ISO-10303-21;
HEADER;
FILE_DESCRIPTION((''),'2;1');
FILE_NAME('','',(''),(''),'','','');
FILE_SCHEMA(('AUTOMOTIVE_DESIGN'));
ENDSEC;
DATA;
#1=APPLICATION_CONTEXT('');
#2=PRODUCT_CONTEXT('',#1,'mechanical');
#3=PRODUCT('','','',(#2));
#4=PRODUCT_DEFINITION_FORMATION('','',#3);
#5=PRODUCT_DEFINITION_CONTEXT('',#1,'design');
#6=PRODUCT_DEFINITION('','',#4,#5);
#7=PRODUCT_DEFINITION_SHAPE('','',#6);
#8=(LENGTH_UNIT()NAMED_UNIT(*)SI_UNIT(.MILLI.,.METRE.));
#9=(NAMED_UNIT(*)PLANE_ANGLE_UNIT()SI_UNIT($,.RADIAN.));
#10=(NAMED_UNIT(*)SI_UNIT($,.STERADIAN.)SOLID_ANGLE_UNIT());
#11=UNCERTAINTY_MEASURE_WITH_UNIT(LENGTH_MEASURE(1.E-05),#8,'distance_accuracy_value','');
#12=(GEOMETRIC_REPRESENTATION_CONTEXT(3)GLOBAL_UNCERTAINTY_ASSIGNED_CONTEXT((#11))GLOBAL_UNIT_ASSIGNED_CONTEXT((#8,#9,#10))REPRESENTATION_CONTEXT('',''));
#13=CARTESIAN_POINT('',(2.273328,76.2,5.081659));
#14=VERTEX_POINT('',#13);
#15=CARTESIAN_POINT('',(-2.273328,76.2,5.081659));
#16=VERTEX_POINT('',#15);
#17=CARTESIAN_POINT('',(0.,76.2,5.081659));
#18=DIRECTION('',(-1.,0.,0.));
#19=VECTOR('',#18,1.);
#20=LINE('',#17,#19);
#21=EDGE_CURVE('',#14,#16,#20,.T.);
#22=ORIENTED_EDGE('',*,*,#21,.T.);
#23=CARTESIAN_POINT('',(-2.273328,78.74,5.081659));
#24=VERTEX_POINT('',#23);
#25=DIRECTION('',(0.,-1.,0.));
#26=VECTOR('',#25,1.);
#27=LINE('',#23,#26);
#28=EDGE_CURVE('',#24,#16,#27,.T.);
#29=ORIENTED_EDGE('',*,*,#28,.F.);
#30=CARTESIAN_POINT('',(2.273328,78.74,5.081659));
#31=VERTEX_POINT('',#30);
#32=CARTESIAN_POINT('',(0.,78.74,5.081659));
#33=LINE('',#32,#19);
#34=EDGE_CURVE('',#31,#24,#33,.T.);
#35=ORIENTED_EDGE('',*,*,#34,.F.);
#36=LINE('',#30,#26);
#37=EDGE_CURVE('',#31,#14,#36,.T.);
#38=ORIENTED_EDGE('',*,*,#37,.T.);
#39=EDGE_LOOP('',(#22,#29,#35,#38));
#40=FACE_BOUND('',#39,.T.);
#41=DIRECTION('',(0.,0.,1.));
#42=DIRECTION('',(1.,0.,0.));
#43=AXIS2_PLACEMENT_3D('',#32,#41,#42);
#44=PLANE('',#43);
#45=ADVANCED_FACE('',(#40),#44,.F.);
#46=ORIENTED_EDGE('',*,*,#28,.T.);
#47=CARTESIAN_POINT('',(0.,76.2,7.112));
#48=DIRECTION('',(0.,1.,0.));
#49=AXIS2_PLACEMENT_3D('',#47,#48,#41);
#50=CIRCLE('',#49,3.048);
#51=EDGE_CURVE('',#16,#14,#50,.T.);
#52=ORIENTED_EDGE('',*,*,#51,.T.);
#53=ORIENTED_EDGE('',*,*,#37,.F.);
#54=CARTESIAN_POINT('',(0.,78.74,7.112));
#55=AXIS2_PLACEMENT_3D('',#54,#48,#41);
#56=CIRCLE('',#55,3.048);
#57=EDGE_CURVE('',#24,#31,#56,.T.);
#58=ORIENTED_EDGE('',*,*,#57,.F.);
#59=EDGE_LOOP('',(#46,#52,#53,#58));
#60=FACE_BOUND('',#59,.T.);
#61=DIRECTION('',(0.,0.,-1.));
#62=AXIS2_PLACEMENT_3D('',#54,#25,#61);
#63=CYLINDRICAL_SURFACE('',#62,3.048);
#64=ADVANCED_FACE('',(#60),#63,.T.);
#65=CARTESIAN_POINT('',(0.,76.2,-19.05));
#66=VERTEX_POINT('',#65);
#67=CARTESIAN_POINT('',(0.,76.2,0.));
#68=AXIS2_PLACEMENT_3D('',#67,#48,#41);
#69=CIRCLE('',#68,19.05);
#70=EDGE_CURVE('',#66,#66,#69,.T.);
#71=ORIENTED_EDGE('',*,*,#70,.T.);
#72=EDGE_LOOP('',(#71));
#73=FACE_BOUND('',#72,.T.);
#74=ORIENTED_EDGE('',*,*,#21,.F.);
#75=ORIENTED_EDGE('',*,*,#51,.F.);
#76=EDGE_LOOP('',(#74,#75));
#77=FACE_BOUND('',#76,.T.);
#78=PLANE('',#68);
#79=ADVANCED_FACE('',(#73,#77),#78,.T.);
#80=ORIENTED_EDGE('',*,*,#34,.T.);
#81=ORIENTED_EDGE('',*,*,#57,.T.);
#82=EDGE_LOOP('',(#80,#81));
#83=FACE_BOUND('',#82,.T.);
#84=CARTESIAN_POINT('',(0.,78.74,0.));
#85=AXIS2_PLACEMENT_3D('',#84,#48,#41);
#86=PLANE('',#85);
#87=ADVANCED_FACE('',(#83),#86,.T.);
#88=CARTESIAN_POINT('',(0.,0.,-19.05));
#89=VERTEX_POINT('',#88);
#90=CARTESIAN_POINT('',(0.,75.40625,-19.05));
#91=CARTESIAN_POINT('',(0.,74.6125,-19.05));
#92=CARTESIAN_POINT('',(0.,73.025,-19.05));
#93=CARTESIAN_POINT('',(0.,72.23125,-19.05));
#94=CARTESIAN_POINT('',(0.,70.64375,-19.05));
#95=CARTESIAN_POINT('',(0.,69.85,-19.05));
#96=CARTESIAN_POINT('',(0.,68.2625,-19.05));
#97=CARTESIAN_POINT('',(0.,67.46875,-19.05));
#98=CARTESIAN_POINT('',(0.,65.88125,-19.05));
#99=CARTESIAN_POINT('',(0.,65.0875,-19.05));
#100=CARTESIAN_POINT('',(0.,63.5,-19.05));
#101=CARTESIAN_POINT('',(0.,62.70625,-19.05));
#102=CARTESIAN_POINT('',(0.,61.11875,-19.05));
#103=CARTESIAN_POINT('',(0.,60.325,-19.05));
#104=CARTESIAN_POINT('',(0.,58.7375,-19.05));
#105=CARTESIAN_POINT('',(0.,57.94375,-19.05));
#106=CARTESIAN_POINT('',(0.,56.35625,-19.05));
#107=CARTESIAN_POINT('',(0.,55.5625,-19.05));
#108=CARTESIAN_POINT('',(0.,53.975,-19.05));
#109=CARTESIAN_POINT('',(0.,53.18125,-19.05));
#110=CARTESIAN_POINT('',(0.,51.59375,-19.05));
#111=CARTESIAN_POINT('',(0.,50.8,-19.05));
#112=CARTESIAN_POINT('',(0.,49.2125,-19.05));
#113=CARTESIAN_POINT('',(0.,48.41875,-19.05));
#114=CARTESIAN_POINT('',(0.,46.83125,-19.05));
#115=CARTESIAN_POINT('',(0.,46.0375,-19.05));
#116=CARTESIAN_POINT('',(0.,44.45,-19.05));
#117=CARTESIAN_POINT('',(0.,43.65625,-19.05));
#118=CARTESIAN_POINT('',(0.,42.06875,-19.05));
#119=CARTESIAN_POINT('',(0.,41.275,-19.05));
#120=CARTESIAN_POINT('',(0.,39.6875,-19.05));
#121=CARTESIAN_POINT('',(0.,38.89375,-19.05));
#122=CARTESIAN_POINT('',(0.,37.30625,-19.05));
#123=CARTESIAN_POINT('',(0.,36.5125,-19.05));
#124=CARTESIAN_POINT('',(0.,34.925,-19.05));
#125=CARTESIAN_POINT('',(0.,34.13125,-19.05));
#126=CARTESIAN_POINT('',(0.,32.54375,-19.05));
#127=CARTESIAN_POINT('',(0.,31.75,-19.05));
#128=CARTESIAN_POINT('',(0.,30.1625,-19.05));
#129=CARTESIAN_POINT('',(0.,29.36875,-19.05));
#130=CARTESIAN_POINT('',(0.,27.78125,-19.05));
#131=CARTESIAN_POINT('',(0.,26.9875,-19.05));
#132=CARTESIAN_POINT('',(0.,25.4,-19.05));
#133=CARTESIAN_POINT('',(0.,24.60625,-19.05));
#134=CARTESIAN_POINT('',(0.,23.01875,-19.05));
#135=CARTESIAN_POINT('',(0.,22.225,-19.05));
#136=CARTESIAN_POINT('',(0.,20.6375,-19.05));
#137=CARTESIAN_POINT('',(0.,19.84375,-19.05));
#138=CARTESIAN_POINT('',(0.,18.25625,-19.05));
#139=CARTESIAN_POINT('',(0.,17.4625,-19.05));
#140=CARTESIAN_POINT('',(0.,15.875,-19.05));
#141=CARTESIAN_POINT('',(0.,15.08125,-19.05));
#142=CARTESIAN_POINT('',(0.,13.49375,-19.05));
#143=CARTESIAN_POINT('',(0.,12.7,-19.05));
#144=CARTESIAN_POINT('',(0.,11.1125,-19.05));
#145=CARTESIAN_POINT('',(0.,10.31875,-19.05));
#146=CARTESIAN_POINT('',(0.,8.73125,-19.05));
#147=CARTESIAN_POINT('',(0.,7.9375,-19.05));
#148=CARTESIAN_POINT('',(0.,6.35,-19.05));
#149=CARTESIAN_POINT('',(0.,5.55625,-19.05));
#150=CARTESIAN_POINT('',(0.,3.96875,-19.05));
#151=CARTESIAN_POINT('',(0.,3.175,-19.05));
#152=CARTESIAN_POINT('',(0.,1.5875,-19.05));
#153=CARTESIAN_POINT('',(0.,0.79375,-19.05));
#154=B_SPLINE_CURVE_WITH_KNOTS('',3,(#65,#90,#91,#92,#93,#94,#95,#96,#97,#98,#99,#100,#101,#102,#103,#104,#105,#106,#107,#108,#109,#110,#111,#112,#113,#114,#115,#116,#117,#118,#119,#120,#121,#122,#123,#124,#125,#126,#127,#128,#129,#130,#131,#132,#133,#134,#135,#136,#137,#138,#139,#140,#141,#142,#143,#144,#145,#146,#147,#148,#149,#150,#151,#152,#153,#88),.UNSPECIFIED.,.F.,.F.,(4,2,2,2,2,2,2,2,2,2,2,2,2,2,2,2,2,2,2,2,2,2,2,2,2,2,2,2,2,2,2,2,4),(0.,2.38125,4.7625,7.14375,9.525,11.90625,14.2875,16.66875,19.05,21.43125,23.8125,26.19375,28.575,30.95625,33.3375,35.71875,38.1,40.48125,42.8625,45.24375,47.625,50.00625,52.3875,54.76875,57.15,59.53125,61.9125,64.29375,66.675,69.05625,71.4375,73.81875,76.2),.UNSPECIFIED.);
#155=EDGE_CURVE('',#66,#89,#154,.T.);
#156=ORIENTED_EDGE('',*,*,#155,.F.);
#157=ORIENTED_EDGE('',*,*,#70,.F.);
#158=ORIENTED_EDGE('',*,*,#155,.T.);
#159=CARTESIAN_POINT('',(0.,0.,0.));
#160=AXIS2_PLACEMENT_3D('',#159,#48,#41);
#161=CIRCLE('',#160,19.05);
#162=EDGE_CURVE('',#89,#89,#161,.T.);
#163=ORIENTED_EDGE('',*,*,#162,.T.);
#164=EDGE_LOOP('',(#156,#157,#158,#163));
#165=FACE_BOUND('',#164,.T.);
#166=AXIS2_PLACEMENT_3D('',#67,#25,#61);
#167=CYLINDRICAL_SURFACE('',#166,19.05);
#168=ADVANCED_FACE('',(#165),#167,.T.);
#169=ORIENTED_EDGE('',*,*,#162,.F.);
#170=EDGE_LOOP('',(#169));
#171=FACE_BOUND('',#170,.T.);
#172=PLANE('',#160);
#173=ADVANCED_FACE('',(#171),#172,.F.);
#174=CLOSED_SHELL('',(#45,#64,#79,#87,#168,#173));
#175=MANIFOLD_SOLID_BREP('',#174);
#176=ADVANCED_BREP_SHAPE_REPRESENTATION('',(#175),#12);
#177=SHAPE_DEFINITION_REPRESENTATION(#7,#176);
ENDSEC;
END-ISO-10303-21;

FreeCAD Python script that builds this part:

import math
import FreeCAD as App
import Part
import Sketcher

V = App.Vector
Q = App.Units.Quantity

doc = App.newDocument("Part")
params = doc.addObject("Spreadsheet::Sheet", "Params")
for row, (alias, value) in enumerate([
    ("sketch1_diameter", "1.5 in"),
    ("pad1_length", "3 in"),
    ("sketch2_radius", "0.12 in"),
    ("pad2_length", "0.1 in"),
], start=1):
    params.set(f"A{row}", alias)
    params.set(f"B{row}", "=" + value)
    params.setAlias(f"B{row}", alias)

body = doc.addObject("PartDesign::Body", "Body")

# Sketch on XZ plane
sketch1 = body.newObject("Sketcher::SketchObject", "Sketch")
sketch1.AttachmentSupport = (doc.getObject("XZ_Plane"), [""])
sketch1.MapMode = "FlatFace"
sketch1.addGeometry(Part.Circle(V(0, 0, 0), V(0, 0, 1), 19.05), False)
sketch1.addConstraint([
    Sketcher.Constraint("Coincident", 0, 3, -1, 1),
    Sketcher.Constraint("Diameter", 0, Q("1.5 in")),
])
sketch1.setExpression("Constraints[1]", "Params.sketch1_diameter")
pad1 = body.newObject("PartDesign::Pad", "Pad")
pad1.Profile = sketch1
pad1.setExpression("Length", "Params.pad1_length")
pad1.Reversed = True

# Sketch on XZ plane
sketch2 = body.newObject("Sketcher::SketchObject", "Sketch001")
sketch2.AttachmentSupport = (doc.getObject("XZ_Plane"), [""])
sketch2.MapMode = "FlatFace"
sketch2.AttachmentOffset = App.Placement(V(0, 0, -3 * 25.4), App.Rotation())
sketch2.addGeometry([
    Part.LineSegment(V(2.273328, 5.081659, 0), V(-2.273328, 5.081659, 0)),
    Part.ArcOfCircle(Part.Circle(V(0, 7.112, 0), V(0, 0, 1), 3.048), math.radians(0), math.radians(221.768481)),
    Part.ArcOfCircle(Part.Circle(V(0, 7.112, 0), V(0, 0, 1), 3.048), math.radians(-41.768481), math.radians(0)),
], False)
sketch2.addConstraint([
    Sketcher.Constraint("Coincident", 0, 2, 1, 2),
    Sketcher.Constraint("Tangent", 1, 1, 2, 2),
    Sketcher.Constraint("Coincident", 2, 1, 0, 1),
    Sketcher.Constraint("Horizontal", 0),
    Sketcher.Constraint("Equal", 1, 2),
    Sketcher.Constraint("PointOnObject", 1, 3, -2),
    Sketcher.Constraint("Horizontal", 2, 3, 1, 1),
    Sketcher.Constraint("Radius", 1, Q("0.12 in")),
    Sketcher.Constraint("DistanceY", -1, 1, 1, 3, Q("0.28 in")),
    Sketcher.Constraint("DistanceX", 0, 2, 0, 1, Q("4.546656 mm")),
])
sketch2.setExpression("Constraints[7]", "Params.sketch2_radius")
pad2 = body.newObject("PartDesign::Pad", "Pad001")
pad2.Profile = sketch2
pad2.setExpression("Length", "Params.pad2_length")
pad2.Reversed = True

doc.recompute()
